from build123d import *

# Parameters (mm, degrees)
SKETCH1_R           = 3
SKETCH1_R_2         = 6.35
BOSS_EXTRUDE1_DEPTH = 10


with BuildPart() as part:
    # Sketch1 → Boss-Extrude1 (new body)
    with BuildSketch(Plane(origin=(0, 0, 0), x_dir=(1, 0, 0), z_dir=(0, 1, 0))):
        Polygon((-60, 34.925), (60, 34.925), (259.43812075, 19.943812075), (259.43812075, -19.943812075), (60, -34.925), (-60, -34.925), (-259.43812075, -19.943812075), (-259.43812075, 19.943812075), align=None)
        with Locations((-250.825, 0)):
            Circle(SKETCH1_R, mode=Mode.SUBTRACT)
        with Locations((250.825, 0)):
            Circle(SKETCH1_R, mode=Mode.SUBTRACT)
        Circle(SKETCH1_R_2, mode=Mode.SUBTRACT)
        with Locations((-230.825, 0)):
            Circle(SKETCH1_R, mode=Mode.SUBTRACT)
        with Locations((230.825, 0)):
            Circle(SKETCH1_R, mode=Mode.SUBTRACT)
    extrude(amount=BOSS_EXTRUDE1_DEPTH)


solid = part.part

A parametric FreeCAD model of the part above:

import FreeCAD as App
import Part
import Sketcher


def add_polygon(sketch, points):
    """Adds a closed chain of lines whose ends are joined by coincident constraints."""
    first, n = sketch.GeometryCount, len(points)
    for a, b in zip(points, points[1:] + points[:1]):
        sketch.addGeometry(Part.LineSegment(App.Vector(*a, 0), App.Vector(*b, 0)), False)
    for i in range(n):
        sketch.addConstraint(Sketcher.Constraint("Coincident", first + i, 2, first + (i + 1) % n, 1))

doc = App.newDocument("Part")
body = doc.addObject("PartDesign::Body", "Body")

# Sketch on XZ plane
sketch1 = body.newObject("Sketcher::SketchObject", "Sketch")
sketch1.AttachmentSupport = (doc.getObject("XZ_Plane"), [""])
sketch1.MapMode = "FlatFace"
add_polygon(sketch1, [(60, -34.925), (-60, -34.925), (-259.438121, -19.943812), (-259.438121, 19.943812), (-60, 34.925), (60, 34.925), (259.438121, 19.943812), (259.438121, -19.943812)])  # lines 0-7
sketch1.addGeometry(Part.Circle(App.Vector(250.825, 0, 0), App.Vector(0, 0, 1), 3), False)  # 8
sketch1.addGeometry(Part.Circle(App.Vector(230.825, 0, 0), App.Vector(0, 0, 1), 3), False)  # 9
sketch1.addGeometry(Part.Circle(App.Vector(0, 0, 0), App.Vector(0, 0, 1), 6.35), False)  # 10
sketch1.addGeometry(Part.Circle(App.Vector(-230.825, 0, 0), App.Vector(0, 0, 1), 3), False)  # 11
sketch1.addGeometry(Part.Circle(App.Vector(-250.825, 0, 0), App.Vector(0, 0, 1), 3), False)  # 12
sketch1.addConstraint([
    Sketcher.Constraint("Horizontal", 0),
    Sketcher.Constraint("Vertical", 2),
    Sketcher.Constraint("Horizontal", 4),
    Sketcher.Constraint("Vertical", 6),
    Sketcher.Constraint("Coincident", 10, 3, -1, 1),
    Sketcher.Constraint("Equal", 8, 9),
    Sketcher.Constraint("Equal", 9, 11),
    Sketcher.Constraint("Equal", 11, 12),
    Sketcher.Constraint("Symmetric", 9, 3, 11, 3, -1, 1),
    Sketcher.Constraint("Symmetric", 8, 3, 12, 3, -1, 1),
    Sketcher.Constraint("Symmetric", 0, 2, 4, 2, -1, 1),
    Sketcher.Constraint("Symmetric", 1, 2, 5, 2, -1, 1),
    Sketcher.Constraint("PointOnObject", 8, 3, -1),
    Sketcher.Constraint("PointOnObject", 9, 3, -1),
    Sketcher.Constraint("Parallel", 3, 7),
    Sketcher.Constraint("Horizontal", 2, 2, 5, 2),
    Sketcher.Constraint("Horizontal", 1, 2, 6, 2),
    Sketcher.Constraint("Vertical", 0, 2, 3, 2),
    Sketcher.Constraint("Diameter", 8, 6.0),
    Sketcher.Constraint("Diameter", 10, 12.7),
    Sketcher.Constraint("DistanceX", 0, 2, 0, 1, 120.0),
    Sketcher.Constraint("Distance", 1, 200.0),
    Sketcher.Constraint("DistanceX", 9, 3, 8, 3, 20.0),
    Sketcher.Constraint("DistanceX", 11, 3, 9, 3, 461.65),
    Sketcher.Constraint("DistanceY", 0, 2, 3, 2, 69.85),
    Sketcher.Constraint("DistanceY", 2, 1, 2, 2, 39.887624),
])
pad1 = body.newObject("PartDesign::Pad", "Pad")
pad1.Profile = sketch1
pad1.Length = 10
pad1.Reversed = True

doc.recompute()
